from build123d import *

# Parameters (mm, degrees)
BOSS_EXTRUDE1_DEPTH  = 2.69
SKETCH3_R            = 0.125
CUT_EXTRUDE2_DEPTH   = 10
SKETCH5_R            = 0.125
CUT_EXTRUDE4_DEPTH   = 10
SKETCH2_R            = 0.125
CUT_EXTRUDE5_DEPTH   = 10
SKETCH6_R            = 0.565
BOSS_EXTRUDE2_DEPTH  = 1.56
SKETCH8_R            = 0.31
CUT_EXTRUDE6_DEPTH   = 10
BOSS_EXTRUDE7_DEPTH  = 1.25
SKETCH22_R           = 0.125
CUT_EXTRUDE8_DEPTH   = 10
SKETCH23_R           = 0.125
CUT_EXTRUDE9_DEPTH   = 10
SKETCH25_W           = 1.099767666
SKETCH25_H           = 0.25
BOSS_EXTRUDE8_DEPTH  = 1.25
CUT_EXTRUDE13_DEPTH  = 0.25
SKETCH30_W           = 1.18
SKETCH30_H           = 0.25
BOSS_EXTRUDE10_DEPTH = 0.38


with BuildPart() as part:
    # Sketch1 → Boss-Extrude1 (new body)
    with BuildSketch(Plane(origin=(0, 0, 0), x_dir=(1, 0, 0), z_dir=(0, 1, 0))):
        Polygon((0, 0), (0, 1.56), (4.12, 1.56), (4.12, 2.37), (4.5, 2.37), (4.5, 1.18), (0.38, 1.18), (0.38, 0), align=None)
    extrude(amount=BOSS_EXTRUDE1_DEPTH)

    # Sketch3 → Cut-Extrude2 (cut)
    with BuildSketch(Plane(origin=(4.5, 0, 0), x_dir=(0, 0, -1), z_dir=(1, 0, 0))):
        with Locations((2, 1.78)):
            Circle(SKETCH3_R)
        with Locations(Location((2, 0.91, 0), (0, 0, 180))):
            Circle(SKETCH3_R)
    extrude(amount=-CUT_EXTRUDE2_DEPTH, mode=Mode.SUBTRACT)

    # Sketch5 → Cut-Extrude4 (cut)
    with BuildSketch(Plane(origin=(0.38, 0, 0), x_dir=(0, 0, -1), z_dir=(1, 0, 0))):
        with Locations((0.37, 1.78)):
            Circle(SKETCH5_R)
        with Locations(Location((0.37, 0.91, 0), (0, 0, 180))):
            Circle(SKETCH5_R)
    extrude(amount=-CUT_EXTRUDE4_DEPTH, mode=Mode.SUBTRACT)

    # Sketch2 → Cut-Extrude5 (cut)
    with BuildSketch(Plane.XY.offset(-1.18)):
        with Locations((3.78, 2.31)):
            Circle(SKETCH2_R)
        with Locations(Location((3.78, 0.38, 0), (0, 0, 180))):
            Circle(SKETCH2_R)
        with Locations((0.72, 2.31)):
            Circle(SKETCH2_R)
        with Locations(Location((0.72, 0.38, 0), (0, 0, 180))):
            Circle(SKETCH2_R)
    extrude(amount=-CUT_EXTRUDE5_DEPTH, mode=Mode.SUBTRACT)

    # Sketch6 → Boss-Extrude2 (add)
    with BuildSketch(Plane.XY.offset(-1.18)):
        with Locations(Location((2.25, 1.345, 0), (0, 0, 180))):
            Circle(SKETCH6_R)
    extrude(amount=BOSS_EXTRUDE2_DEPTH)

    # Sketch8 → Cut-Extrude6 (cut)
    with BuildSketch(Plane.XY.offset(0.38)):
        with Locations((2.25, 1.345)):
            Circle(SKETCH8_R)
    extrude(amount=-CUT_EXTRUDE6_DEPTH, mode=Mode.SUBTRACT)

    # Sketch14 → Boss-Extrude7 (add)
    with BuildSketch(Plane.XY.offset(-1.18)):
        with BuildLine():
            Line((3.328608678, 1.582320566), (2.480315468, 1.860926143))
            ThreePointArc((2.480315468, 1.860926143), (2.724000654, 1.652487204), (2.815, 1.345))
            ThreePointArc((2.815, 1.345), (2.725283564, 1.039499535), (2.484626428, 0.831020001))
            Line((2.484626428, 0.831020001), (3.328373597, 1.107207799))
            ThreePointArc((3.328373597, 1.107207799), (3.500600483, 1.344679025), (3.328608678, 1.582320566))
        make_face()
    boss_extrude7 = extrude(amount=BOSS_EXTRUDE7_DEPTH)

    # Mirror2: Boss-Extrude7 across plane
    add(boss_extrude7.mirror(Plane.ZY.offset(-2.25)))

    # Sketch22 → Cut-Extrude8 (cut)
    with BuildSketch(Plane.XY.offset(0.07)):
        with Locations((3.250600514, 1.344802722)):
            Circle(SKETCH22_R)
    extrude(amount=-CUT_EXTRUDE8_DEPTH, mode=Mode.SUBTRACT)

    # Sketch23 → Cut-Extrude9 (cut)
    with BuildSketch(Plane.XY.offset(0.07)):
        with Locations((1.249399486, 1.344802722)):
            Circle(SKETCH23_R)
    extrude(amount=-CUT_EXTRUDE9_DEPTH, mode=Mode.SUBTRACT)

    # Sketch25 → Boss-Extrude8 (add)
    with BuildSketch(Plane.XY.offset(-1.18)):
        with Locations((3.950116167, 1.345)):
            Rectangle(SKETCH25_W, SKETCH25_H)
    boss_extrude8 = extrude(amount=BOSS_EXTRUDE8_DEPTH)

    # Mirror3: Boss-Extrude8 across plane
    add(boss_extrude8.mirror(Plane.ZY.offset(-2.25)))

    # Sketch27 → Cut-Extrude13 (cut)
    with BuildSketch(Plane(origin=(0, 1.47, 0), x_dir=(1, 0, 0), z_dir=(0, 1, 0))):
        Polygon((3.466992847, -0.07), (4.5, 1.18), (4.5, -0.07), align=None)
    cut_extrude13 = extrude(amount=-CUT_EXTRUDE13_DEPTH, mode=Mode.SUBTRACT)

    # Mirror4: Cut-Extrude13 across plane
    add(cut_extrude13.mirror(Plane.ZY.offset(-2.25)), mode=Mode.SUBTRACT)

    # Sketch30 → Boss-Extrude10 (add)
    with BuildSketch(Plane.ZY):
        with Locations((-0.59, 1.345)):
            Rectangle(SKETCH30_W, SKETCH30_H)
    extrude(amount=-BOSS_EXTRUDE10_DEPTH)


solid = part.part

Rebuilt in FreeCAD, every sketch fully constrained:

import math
import FreeCAD as App
import Part
import Sketcher
from FreeCAD import Vector


def add_polygon(sketch, points):
    """Adds a closed chain of lines whose ends are joined by coincident constraints."""
    first, n = sketch.GeometryCount, len(points)
    for a, b in zip(points, points[1:] + points[:1]):
        sketch.addGeometry(Part.LineSegment(App.Vector(*a, 0), App.Vector(*b, 0)), False)
    for i in range(n):
        sketch.addConstraint(Sketcher.Constraint("Coincident", first + i, 2, first + (i + 1) % n, 1))

doc = App.newDocument("Part")
body = doc.addObject("PartDesign::Body", "Body")

# Sketch on XZ plane
sketch1 = body.newObject("Sketcher::SketchObject", "Sketch")
sketch1.AttachmentSupport = (doc.getObject("XZ_Plane"), [""])
sketch1.MapMode = "FlatFace"
add_polygon(sketch1, [(0, -1.56), (0, 0), (0.38, 0), (0.38, -1.18), (4.5, -1.18), (4.5, -2.37), (4.12, -2.37), (4.12, -1.56)])  # lines 0-7
sketch1.addConstraint(Sketcher.Constraint("Vertical", 0))
sketch1.addConstraint(Sketcher.Constraint("Horizontal", 1))
sketch1.addConstraint(Sketcher.Constraint("Vertical", 2))
sketch1.addConstraint(Sketcher.Constraint("Horizontal", 3))
sketch1.addConstraint(Sketcher.Constraint("Vertical", 4))
sketch1.addConstraint(Sketcher.Constraint("Horizontal", 5))
sketch1.addConstraint(Sketcher.Constraint("Vertical", 6))
sketch1.addConstraint(Sketcher.Constraint("Horizontal", 7))
sketch1.addConstraint(Sketcher.Constraint("Coincident", 0, 2, -1, 1))
sketch1.addConstraint(Sketcher.Constraint("Equal", 1, 5))
sketch1.addConstraint(Sketcher.Constraint("DistanceX", 1, 1, 1, 2, 0.38))
sketch1.addConstraint(Sketcher.Constraint("DistanceX", 3, 1, 3, 2, 4.12))
sketch1.addConstraint(Sketcher.Constraint("DistanceY", 0, 1, 0, 2, 1.56))
sketch1.addConstraint(Sketcher.Constraint("DistanceY", 2, 2, 2, 1, 1.18))
sketch1.addConstraint(Sketcher.Constraint("DistanceY", 4, 2, 4, 1, 1.19))
pad1 = body.newObject("PartDesign::Pad", "Pad")
pad1.Profile = sketch1
pad1.Length = 2.69
pad1.Reversed = True

# Sketch on YZ plane
sketch2 = body.newObject("Sketcher::SketchObject", "Sketch001")
sketch2.AttachmentSupport = (doc.getObject("YZ_Plane"), [""])
sketch2.MapMode = "FlatFace"
sketch2.AttachmentOffset = App.Placement(Vector(0, 0, 4.5), App.Rotation())
sketch2.addGeometry(Part.Circle(Vector(1.78, -2, 0), Vector(0, 0, 1), 0.12), False)
sketch2.addGeometry(Part.Circle(Vector(0.91, -2, 0), Vector(0, 0, 1), 0.12), False)
sketch2.addConstraint(Sketcher.Constraint("Equal", 0, 1))
sketch2.addConstraint(Sketcher.Constraint("Horizontal", 0, 3, 1, 3))
sketch2.addConstraint(Sketcher.Constraint("Diameter", 0, 0.25))
sketch2.addConstraint(Sketcher.Constraint("DistanceY", 0, 3, -1, 1, 2.0))
sketch2.addConstraint(Sketcher.Constraint("DistanceX", -1, 1, 0, 3, 1.78))
sketch2.addConstraint(Sketcher.Constraint("DistanceX", -1, 1, 1, 3, 0.91))
pocket1 = body.newObject("PartDesign::Pocket", "Pocket")
pocket1.Profile = sketch2
pocket1.Length = 10

# Sketch on YZ plane
sketch3 = body.newObject("Sketcher::SketchObject", "Sketch002")
sketch3.AttachmentSupport = (doc.getObject("YZ_Plane"), [""])
sketch3.MapMode = "FlatFace"
sketch3.AttachmentOffset = App.Placement(Vector(0, 0, 0.38), App.Rotation())
sketch3.addGeometry(Part.Circle(Vector(1.78, -0.37, 0), Vector(0, 0, 1), 0.12), False)
sketch3.addGeometry(Part.Circle(Vector(0.91, -0.37, 0), Vector(0, 0, 1), 0.12), False)
sketch3.addConstraint(Sketcher.Constraint("Equal", 0, 1))
sketch3.addConstraint(Sketcher.Constraint("Horizontal", 0, 3, 1, 3))
sketch3.addConstraint(Sketcher.Constraint("Diameter", 0, 0.25))
sketch3.addConstraint(Sketcher.Constraint("DistanceX", -1, 1, 0, 3, 1.78))
sketch3.addConstraint(Sketcher.Constraint("DistanceY", 0, 3, -1, 1, 0.37))
sketch3.addConstraint(Sketcher.Constraint("DistanceX", -1, 1, 1, 3, 0.91))
pocket2 = body.newObject("PartDesign::Pocket", "Pocket001")
pocket2.Profile = sketch3
pocket2.Length = 10

# Sketch on XY plane
sketch4 = body.newObject("Sketcher::SketchObject", "Sketch003")
sketch4.AttachmentSupport = (doc.getObject("XY_Plane"), [""])
sketch4.MapMode = "FlatFace"
sketch4.AttachmentOffset = App.Placement(Vector(0, 0, -1.18), App.Rotation())
sketch4.addGeometry(Part.Circle(Vector(3.78, 2.31, 0), Vector(0, 0, 1), 0.12), False)
sketch4.addGeometry(Part.Circle(Vector(3.78, 0.38, 0), Vector(0, 0, 1), 0.12), False)
sketch4.addGeometry(Part.Circle(Vector(0.72, 2.31, 0), Vector(0, 0, 1), 0.12), False)
sketch4.addGeometry(Part.Circle(Vector(0.72, 0.38, 0), Vector(0, 0, 1), 0.12), False)
sketch4.addConstraint(Sketcher.Constraint("Equal", 0, 1))
sketch4.addConstraint(Sketcher.Constraint("Equal", 1, 2))
sketch4.addConstraint(Sketcher.Constraint("Equal", 2, 3))
sketch4.addConstraint(Sketcher.Constraint("Horizontal", 0, 3, 2, 3))
sketch4.addConstraint(Sketcher.Constraint("Horizontal", 1, 3, 3, 3))
sketch4.addConstraint(Sketcher.Constraint("Vertical", 0, 3, 1, 3))
sketch4.addConstraint(Sketcher.Constraint("Vertical", 2, 3, 3, 3))
sketch4.addConstraint(Sketcher.Constraint("Diameter", 0, 0.25))
sketch4.addConstraint(Sketcher.Constraint("DistanceX", -1, 1, 0, 3, 3.78))
sketch4.addConstraint(Sketcher.Constraint("DistanceY", -1, 1, 0, 3, 2.31))
sketch4.addConstraint(Sketcher.Constraint("DistanceY", -1, 1, 1, 3, 0.38))
sketch4.addConstraint(Sketcher.Constraint("DistanceX", -1, 1, 2, 3, 0.72))
pocket3 = body.newObject("PartDesign::Pocket", "Pocket002")
pocket3.Profile = sketch4
pocket3.Length = 10

# Sketch on XY plane
sketch5 = body.newObject("Sketcher::SketchObject", "Sketch004")
sketch5.AttachmentSupport = (doc.getObject("XY_Plane"), [""])
sketch5.MapMode = "FlatFace"
sketch5.AttachmentOffset = App.Placement(Vector(0, 0, -1.18), App.Rotation())
sketch5.addGeometry(Part.Circle(Vector(2.2, 1.3, 0), Vector(0, 0, 1), 0.6), False)
sketch5.addConstraint(Sketcher.Constraint("Diameter", 0, 1.13))
sketch5.addConstraint(Sketcher.Constraint("DistanceX", -1, 1, 0, 3, 2.25))
sketch5.addConstraint(Sketcher.Constraint("DistanceY", -1, 1, 0, 3, 1.345))
pad2 = body.newObject("PartDesign::Pad", "Pad001")
pad2.Profile = sketch5
pad2.Length = 1.56

# Sketch on XY plane
sketch6 = body.newObject("Sketcher::SketchObject", "Sketch005")
sketch6.AttachmentSupport = (doc.getObject("XY_Plane"), [""])
sketch6.MapMode = "FlatFace"
sketch6.AttachmentOffset = App.Placement(Vector(0, 0, 0.38), App.Rotation())
sketch6.addGeometry(Part.Circle(Vector(2.25, 1.34, 0), Vector(0, 0, 1), 0.31), False)
sketch6.addConstraint(Sketcher.Constraint("Diameter", 0, 0.62))
sketch6.addConstraint(Sketcher.Constraint("DistanceX", -1, 1, 0, 3, 2.25))
sketch6.addConstraint(Sketcher.Constraint("DistanceY", -1, 1, 0, 3, 1.345))
pocket4 = body.newObject("PartDesign::Pocket", "Pocket003")
pocket4.Profile = sketch6
pocket4.Length = 10

# Sketch on XY plane
sketch7 = body.newObject("Sketcher::SketchObject", "Sketch006")
sketch7.AttachmentSupport = (doc.getObject("XY_Plane"), [""])
sketch7.MapMode = "FlatFace"
sketch7.AttachmentOffset = App.Placement(Vector(0, 0, -1.18), App.Rotation())
sketch7.addGeometry(Part.LineSegment(Vector(3.33, 1.58, 0), Vector(2.48, 1.86, 0)), False)
sketch7.addGeometry(Part.ArcOfCircle(Part.Circle(Vector(2.25, 1.35, 0), Vector(0, 0, 1), 0.56), math.radians(0), math.radians(66)), False)
sketch7.addGeometry(Part.ArcOfCircle(Part.Circle(Vector(2.25, 1.34, 0), Vector(0, 0, 1), 0.56), math.radians(-65), math.radians(0)), False)
sketch7.addGeometry(Part.LineSegment(Vector(2.48, 0.83, 0), Vector(3.33, 1.11, 0)), False)
sketch7.addGeometry(Part.ArcOfCircle(Part.Circle(Vector(3.25, 1.34, 0), Vector(0, 0, 1), 0.25), math.radians(-72), math.radians(72)), False)
sketch7.addConstraint(Sketcher.Constraint("Coincident", 0, 2, 1, 2))
sketch7.addConstraint(Sketcher.Constraint("Tangent", 1, 1, 2, 2))
sketch7.addConstraint(Sketcher.Constraint("Coincident", 2, 1, 3, 1))
sketch7.addConstraint(Sketcher.Constraint("Tangent", 3, 2, 4, 1))
sketch7.addConstraint(Sketcher.Constraint("Tangent", 4, 2, 0, 1))
sketch7.addConstraint(Sketcher.Constraint("Equal", 1, 2))
sketch7.addConstraint(Sketcher.Constraint("Horizontal", 2, 3, 1, 1))
sketch7.addConstraint(Sketcher.Constraint("Radius", 4, 0.25))
sketch7.addConstraint(Sketcher.Constraint("Radius", 1, 0.565))
sketch7.addConstraint(Sketcher.Constraint("DistanceX", -1, 1, 1, 3, 2.25))
sketch7.addConstraint(Sketcher.Constraint("DistanceY", -1, 1, 1, 3, 1.345))
sketch7.addConstraint(Sketcher.Constraint("Distance", 3, 0.8878))
sketch7.addConstraint(Sketcher.Constraint("DistanceX", -1, 1, 4, 3, 3.250601))
sketch7.addConstraint(Sketcher.Constraint("DistanceY", -1, 1, 2, 1, 0.83102))
sketch7.addConstraint(Sketcher.Constraint("DistanceX", -1, 1, 4, 2, 3.328609))
pad3 = body.newObject("PartDesign::Pad", "Pad002")
pad3.Profile = sketch7
pad3.Length = 1.25
doc.recompute()

datumplane = body.newObject("PartDesign::Plane", "DatumPlane")
datumplane.AttachmentSupport = (doc.getObject("YZ_Plane"), [""])
datumplane.MapMode = "FlatFace"
datumplane.AttachmentOffset = App.Placement(Vector(0, 0, 2.25), App.Rotation())
mirrored = body.newObject("PartDesign::Mirrored", "Mirrored")
mirrored.Originals = [pad3]
mirrored.MirrorPlane = (datumplane, [""])
body.Tip = mirrored

# Sketch on XY plane
sketch8 = body.newObject("Sketcher::SketchObject", "Sketch007")
sketch8.AttachmentSupport = (doc.getObject("XY_Plane"), [""])
sketch8.MapMode = "FlatFace"
sketch8.AttachmentOffset = App.Placement(Vector(0, 0, 0.07), App.Rotation())
sketch8.addGeometry(Part.Circle(Vector(3.25, 1.34, 0), Vector(0, 0, 1), 0.12), False)
sketch8.addConstraint(Sketcher.Constraint("Diameter", 0, 0.25))
sketch8.addConstraint(Sketcher.Constraint("DistanceX", -1, 1, 0, 3, 3.250601))
sketch8.addConstraint(Sketcher.Constraint("DistanceY", -1, 1, 0, 3, 1.344803))
pocket5 = body.newObject("PartDesign::Pocket", "Pocket004")
pocket5.Profile = sketch8
pocket5.Length = 10

# Sketch on XY plane
sketch9 = body.newObject("Sketcher::SketchObject", "Sketch008")
sketch9.AttachmentSupport = (doc.getObject("XY_Plane"), [""])
sketch9.MapMode = "FlatFace"
sketch9.AttachmentOffset = App.Placement(Vector(0, 0, 0.07), App.Rotation())
sketch9.addGeometry(Part.Circle(Vector(1.25, 1.34, 0), Vector(0, 0, 1), 0.12), False)
sketch9.addConstraint(Sketcher.Constraint("Diameter", 0, 0.25))
sketch9.addConstraint(Sketcher.Constraint("DistanceX", -1, 1, 0, 3, 1.249399))
sketch9.addConstraint(Sketcher.Constraint("DistanceY", -1, 1, 0, 3, 1.344803))
pocket6 = body.newObject("PartDesign::Pocket", "Pocket005")
pocket6.Profile = sketch9
pocket6.Length = 10

# Sketch on XY plane
sketch10 = body.newObject("Sketcher::SketchObject", "Sketch009")
sketch10.AttachmentSupport = (doc.getObject("XY_Plane"), [""])
sketch10.MapMode = "FlatFace"
sketch10.AttachmentOffset = App.Placement(Vector(0, 0, -1.18), App.Rotation())
add_polygon(sketch10, [(3.4, 1.47), (3.4, 1.22), (4.5, 1.22), (4.5, 1.47)])  # lines 0-3
sketch10.addConstraint(Sketcher.Constraint("Vertical", 0))
sketch10.addConstraint(Sketcher.Constraint("Horizontal", 1))
sketch10.addConstraint(Sketcher.Constraint("Vertical", 2))
sketch10.addConstraint(Sketcher.Constraint("Horizontal", 3))
sketch10.addConstraint(Sketcher.Constraint("DistanceY", 0, 2, 0, 1, 0.25))
sketch10.addConstraint(Sketcher.Constraint("DistanceX", -1, 1, 1, 2, 4.5))
sketch10.addConstraint(Sketcher.Constraint("DistanceY", -1, 1, 0, 2, 1.22))
sketch10.addConstraint(Sketcher.Constraint("DistanceX", 1, 1, 1, 2, 1.099768))
pad4 = body.newObject("PartDesign::Pad", "Pad003")
pad4.Profile = sketch10
pad4.Length = 1.25
doc.recompute()

datumplane2 = body.newObject("PartDesign::Plane", "DatumPlane001")
datumplane2.AttachmentSupport = (doc.getObject("YZ_Plane"), [""])
datumplane2.MapMode = "FlatFace"
datumplane2.AttachmentOffset = App.Placement(Vector(0, 0, 2.25), App.Rotation())
mirrored2 = body.newObject("PartDesign::Mirrored", "Mirrored001")
mirrored2.Originals = [pad4]
mirrored2.MirrorPlane = (datumplane2, [""])
body.Tip = mirrored2

# Sketch on XZ plane
sketch11 = body.newObject("Sketcher::SketchObject", "Sketch010")
sketch11.AttachmentSupport = (doc.getObject("XZ_Plane"), [""])
sketch11.MapMode = "FlatFace"
sketch11.AttachmentOffset = App.Placement(Vector(0, 0, -1.47), App.Rotation())
add_polygon(sketch11, [(4.5, -1.2), (3.5, 0.1), (4.5, 0.1)])  # lines 0-2
sketch11.addConstraint(Sketcher.Constraint("Horizontal", 1))
sketch11.addConstraint(Sketcher.Constraint("Vertical", 2))
sketch11.addConstraint(Sketcher.Constraint("DistanceY", 2, 2, 2, 1, 1.25))
sketch11.addConstraint(Sketcher.Constraint("DistanceX", -1, 1, 1, 2, 4.5))
sketch11.addConstraint(Sketcher.Constraint("DistanceY", -1, 1, 0, 2, 0.07))
sketch11.addConstraint(Sketcher.Constraint("DistanceX", 1, 1, 1, 2, 1.033007))
pocket7 = body.newObject("PartDesign::Pocket", "Pocket006")
pocket7.Profile = sketch11
pocket7.Length = 0.25
pocket7.Reversed = True
doc.recompute()

datumplane3 = body.newObject("PartDesign::Plane", "DatumPlane002")
datumplane3.AttachmentSupport = (doc.getObject("YZ_Plane"), [""])
datumplane3.MapMode = "FlatFace"
datumplane3.AttachmentOffset = App.Placement(Vector(0, 0, 2.25), App.Rotation())
mirrored3 = body.newObject("PartDesign::Mirrored", "Mirrored002")
mirrored3.Originals = [pocket7]
mirrored3.MirrorPlane = (datumplane3, [""])
body.Tip = mirrored3

# Sketch on YZ plane
sketch12 = body.newObject("Sketcher::SketchObject", "Sketch011")
sketch12.AttachmentSupport = (doc.getObject("YZ_Plane"), [""])
sketch12.MapMode = "FlatFace"
add_polygon(sketch12, [(1.47, -1.18), (1.22, -1.18), (1.22, 0), (1.47, 0)])  # lines 0-3
sketch12.addConstraint(Sketcher.Constraint("Horizontal", 0))
sketch12.addConstraint(Sketcher.Constraint("Vertical", 1))
sketch12.addConstraint(Sketcher.Constraint("Horizontal", 2))
sketch12.addConstraint(Sketcher.Constraint("Vertical", 3))
sketch12.addConstraint(Sketcher.Constraint("PointOnObject", 1, 2, -1))
sketch12.addConstraint(Sketcher.Constraint("DistanceX", 0, 2, 0, 1, 0.25))
sketch12.addConstraint(Sketcher.Constraint("DistanceY", 1, 1, 1, 2, 1.18))
sketch12.addConstraint(Sketcher.Constraint("DistanceX", -1, 1, 0, 2, 1.22))
pad5 = body.newObject("PartDesign::Pad", "Pad004")
pad5.Profile = sketch12
pad5.Length = 0.38

doc.recompute()
